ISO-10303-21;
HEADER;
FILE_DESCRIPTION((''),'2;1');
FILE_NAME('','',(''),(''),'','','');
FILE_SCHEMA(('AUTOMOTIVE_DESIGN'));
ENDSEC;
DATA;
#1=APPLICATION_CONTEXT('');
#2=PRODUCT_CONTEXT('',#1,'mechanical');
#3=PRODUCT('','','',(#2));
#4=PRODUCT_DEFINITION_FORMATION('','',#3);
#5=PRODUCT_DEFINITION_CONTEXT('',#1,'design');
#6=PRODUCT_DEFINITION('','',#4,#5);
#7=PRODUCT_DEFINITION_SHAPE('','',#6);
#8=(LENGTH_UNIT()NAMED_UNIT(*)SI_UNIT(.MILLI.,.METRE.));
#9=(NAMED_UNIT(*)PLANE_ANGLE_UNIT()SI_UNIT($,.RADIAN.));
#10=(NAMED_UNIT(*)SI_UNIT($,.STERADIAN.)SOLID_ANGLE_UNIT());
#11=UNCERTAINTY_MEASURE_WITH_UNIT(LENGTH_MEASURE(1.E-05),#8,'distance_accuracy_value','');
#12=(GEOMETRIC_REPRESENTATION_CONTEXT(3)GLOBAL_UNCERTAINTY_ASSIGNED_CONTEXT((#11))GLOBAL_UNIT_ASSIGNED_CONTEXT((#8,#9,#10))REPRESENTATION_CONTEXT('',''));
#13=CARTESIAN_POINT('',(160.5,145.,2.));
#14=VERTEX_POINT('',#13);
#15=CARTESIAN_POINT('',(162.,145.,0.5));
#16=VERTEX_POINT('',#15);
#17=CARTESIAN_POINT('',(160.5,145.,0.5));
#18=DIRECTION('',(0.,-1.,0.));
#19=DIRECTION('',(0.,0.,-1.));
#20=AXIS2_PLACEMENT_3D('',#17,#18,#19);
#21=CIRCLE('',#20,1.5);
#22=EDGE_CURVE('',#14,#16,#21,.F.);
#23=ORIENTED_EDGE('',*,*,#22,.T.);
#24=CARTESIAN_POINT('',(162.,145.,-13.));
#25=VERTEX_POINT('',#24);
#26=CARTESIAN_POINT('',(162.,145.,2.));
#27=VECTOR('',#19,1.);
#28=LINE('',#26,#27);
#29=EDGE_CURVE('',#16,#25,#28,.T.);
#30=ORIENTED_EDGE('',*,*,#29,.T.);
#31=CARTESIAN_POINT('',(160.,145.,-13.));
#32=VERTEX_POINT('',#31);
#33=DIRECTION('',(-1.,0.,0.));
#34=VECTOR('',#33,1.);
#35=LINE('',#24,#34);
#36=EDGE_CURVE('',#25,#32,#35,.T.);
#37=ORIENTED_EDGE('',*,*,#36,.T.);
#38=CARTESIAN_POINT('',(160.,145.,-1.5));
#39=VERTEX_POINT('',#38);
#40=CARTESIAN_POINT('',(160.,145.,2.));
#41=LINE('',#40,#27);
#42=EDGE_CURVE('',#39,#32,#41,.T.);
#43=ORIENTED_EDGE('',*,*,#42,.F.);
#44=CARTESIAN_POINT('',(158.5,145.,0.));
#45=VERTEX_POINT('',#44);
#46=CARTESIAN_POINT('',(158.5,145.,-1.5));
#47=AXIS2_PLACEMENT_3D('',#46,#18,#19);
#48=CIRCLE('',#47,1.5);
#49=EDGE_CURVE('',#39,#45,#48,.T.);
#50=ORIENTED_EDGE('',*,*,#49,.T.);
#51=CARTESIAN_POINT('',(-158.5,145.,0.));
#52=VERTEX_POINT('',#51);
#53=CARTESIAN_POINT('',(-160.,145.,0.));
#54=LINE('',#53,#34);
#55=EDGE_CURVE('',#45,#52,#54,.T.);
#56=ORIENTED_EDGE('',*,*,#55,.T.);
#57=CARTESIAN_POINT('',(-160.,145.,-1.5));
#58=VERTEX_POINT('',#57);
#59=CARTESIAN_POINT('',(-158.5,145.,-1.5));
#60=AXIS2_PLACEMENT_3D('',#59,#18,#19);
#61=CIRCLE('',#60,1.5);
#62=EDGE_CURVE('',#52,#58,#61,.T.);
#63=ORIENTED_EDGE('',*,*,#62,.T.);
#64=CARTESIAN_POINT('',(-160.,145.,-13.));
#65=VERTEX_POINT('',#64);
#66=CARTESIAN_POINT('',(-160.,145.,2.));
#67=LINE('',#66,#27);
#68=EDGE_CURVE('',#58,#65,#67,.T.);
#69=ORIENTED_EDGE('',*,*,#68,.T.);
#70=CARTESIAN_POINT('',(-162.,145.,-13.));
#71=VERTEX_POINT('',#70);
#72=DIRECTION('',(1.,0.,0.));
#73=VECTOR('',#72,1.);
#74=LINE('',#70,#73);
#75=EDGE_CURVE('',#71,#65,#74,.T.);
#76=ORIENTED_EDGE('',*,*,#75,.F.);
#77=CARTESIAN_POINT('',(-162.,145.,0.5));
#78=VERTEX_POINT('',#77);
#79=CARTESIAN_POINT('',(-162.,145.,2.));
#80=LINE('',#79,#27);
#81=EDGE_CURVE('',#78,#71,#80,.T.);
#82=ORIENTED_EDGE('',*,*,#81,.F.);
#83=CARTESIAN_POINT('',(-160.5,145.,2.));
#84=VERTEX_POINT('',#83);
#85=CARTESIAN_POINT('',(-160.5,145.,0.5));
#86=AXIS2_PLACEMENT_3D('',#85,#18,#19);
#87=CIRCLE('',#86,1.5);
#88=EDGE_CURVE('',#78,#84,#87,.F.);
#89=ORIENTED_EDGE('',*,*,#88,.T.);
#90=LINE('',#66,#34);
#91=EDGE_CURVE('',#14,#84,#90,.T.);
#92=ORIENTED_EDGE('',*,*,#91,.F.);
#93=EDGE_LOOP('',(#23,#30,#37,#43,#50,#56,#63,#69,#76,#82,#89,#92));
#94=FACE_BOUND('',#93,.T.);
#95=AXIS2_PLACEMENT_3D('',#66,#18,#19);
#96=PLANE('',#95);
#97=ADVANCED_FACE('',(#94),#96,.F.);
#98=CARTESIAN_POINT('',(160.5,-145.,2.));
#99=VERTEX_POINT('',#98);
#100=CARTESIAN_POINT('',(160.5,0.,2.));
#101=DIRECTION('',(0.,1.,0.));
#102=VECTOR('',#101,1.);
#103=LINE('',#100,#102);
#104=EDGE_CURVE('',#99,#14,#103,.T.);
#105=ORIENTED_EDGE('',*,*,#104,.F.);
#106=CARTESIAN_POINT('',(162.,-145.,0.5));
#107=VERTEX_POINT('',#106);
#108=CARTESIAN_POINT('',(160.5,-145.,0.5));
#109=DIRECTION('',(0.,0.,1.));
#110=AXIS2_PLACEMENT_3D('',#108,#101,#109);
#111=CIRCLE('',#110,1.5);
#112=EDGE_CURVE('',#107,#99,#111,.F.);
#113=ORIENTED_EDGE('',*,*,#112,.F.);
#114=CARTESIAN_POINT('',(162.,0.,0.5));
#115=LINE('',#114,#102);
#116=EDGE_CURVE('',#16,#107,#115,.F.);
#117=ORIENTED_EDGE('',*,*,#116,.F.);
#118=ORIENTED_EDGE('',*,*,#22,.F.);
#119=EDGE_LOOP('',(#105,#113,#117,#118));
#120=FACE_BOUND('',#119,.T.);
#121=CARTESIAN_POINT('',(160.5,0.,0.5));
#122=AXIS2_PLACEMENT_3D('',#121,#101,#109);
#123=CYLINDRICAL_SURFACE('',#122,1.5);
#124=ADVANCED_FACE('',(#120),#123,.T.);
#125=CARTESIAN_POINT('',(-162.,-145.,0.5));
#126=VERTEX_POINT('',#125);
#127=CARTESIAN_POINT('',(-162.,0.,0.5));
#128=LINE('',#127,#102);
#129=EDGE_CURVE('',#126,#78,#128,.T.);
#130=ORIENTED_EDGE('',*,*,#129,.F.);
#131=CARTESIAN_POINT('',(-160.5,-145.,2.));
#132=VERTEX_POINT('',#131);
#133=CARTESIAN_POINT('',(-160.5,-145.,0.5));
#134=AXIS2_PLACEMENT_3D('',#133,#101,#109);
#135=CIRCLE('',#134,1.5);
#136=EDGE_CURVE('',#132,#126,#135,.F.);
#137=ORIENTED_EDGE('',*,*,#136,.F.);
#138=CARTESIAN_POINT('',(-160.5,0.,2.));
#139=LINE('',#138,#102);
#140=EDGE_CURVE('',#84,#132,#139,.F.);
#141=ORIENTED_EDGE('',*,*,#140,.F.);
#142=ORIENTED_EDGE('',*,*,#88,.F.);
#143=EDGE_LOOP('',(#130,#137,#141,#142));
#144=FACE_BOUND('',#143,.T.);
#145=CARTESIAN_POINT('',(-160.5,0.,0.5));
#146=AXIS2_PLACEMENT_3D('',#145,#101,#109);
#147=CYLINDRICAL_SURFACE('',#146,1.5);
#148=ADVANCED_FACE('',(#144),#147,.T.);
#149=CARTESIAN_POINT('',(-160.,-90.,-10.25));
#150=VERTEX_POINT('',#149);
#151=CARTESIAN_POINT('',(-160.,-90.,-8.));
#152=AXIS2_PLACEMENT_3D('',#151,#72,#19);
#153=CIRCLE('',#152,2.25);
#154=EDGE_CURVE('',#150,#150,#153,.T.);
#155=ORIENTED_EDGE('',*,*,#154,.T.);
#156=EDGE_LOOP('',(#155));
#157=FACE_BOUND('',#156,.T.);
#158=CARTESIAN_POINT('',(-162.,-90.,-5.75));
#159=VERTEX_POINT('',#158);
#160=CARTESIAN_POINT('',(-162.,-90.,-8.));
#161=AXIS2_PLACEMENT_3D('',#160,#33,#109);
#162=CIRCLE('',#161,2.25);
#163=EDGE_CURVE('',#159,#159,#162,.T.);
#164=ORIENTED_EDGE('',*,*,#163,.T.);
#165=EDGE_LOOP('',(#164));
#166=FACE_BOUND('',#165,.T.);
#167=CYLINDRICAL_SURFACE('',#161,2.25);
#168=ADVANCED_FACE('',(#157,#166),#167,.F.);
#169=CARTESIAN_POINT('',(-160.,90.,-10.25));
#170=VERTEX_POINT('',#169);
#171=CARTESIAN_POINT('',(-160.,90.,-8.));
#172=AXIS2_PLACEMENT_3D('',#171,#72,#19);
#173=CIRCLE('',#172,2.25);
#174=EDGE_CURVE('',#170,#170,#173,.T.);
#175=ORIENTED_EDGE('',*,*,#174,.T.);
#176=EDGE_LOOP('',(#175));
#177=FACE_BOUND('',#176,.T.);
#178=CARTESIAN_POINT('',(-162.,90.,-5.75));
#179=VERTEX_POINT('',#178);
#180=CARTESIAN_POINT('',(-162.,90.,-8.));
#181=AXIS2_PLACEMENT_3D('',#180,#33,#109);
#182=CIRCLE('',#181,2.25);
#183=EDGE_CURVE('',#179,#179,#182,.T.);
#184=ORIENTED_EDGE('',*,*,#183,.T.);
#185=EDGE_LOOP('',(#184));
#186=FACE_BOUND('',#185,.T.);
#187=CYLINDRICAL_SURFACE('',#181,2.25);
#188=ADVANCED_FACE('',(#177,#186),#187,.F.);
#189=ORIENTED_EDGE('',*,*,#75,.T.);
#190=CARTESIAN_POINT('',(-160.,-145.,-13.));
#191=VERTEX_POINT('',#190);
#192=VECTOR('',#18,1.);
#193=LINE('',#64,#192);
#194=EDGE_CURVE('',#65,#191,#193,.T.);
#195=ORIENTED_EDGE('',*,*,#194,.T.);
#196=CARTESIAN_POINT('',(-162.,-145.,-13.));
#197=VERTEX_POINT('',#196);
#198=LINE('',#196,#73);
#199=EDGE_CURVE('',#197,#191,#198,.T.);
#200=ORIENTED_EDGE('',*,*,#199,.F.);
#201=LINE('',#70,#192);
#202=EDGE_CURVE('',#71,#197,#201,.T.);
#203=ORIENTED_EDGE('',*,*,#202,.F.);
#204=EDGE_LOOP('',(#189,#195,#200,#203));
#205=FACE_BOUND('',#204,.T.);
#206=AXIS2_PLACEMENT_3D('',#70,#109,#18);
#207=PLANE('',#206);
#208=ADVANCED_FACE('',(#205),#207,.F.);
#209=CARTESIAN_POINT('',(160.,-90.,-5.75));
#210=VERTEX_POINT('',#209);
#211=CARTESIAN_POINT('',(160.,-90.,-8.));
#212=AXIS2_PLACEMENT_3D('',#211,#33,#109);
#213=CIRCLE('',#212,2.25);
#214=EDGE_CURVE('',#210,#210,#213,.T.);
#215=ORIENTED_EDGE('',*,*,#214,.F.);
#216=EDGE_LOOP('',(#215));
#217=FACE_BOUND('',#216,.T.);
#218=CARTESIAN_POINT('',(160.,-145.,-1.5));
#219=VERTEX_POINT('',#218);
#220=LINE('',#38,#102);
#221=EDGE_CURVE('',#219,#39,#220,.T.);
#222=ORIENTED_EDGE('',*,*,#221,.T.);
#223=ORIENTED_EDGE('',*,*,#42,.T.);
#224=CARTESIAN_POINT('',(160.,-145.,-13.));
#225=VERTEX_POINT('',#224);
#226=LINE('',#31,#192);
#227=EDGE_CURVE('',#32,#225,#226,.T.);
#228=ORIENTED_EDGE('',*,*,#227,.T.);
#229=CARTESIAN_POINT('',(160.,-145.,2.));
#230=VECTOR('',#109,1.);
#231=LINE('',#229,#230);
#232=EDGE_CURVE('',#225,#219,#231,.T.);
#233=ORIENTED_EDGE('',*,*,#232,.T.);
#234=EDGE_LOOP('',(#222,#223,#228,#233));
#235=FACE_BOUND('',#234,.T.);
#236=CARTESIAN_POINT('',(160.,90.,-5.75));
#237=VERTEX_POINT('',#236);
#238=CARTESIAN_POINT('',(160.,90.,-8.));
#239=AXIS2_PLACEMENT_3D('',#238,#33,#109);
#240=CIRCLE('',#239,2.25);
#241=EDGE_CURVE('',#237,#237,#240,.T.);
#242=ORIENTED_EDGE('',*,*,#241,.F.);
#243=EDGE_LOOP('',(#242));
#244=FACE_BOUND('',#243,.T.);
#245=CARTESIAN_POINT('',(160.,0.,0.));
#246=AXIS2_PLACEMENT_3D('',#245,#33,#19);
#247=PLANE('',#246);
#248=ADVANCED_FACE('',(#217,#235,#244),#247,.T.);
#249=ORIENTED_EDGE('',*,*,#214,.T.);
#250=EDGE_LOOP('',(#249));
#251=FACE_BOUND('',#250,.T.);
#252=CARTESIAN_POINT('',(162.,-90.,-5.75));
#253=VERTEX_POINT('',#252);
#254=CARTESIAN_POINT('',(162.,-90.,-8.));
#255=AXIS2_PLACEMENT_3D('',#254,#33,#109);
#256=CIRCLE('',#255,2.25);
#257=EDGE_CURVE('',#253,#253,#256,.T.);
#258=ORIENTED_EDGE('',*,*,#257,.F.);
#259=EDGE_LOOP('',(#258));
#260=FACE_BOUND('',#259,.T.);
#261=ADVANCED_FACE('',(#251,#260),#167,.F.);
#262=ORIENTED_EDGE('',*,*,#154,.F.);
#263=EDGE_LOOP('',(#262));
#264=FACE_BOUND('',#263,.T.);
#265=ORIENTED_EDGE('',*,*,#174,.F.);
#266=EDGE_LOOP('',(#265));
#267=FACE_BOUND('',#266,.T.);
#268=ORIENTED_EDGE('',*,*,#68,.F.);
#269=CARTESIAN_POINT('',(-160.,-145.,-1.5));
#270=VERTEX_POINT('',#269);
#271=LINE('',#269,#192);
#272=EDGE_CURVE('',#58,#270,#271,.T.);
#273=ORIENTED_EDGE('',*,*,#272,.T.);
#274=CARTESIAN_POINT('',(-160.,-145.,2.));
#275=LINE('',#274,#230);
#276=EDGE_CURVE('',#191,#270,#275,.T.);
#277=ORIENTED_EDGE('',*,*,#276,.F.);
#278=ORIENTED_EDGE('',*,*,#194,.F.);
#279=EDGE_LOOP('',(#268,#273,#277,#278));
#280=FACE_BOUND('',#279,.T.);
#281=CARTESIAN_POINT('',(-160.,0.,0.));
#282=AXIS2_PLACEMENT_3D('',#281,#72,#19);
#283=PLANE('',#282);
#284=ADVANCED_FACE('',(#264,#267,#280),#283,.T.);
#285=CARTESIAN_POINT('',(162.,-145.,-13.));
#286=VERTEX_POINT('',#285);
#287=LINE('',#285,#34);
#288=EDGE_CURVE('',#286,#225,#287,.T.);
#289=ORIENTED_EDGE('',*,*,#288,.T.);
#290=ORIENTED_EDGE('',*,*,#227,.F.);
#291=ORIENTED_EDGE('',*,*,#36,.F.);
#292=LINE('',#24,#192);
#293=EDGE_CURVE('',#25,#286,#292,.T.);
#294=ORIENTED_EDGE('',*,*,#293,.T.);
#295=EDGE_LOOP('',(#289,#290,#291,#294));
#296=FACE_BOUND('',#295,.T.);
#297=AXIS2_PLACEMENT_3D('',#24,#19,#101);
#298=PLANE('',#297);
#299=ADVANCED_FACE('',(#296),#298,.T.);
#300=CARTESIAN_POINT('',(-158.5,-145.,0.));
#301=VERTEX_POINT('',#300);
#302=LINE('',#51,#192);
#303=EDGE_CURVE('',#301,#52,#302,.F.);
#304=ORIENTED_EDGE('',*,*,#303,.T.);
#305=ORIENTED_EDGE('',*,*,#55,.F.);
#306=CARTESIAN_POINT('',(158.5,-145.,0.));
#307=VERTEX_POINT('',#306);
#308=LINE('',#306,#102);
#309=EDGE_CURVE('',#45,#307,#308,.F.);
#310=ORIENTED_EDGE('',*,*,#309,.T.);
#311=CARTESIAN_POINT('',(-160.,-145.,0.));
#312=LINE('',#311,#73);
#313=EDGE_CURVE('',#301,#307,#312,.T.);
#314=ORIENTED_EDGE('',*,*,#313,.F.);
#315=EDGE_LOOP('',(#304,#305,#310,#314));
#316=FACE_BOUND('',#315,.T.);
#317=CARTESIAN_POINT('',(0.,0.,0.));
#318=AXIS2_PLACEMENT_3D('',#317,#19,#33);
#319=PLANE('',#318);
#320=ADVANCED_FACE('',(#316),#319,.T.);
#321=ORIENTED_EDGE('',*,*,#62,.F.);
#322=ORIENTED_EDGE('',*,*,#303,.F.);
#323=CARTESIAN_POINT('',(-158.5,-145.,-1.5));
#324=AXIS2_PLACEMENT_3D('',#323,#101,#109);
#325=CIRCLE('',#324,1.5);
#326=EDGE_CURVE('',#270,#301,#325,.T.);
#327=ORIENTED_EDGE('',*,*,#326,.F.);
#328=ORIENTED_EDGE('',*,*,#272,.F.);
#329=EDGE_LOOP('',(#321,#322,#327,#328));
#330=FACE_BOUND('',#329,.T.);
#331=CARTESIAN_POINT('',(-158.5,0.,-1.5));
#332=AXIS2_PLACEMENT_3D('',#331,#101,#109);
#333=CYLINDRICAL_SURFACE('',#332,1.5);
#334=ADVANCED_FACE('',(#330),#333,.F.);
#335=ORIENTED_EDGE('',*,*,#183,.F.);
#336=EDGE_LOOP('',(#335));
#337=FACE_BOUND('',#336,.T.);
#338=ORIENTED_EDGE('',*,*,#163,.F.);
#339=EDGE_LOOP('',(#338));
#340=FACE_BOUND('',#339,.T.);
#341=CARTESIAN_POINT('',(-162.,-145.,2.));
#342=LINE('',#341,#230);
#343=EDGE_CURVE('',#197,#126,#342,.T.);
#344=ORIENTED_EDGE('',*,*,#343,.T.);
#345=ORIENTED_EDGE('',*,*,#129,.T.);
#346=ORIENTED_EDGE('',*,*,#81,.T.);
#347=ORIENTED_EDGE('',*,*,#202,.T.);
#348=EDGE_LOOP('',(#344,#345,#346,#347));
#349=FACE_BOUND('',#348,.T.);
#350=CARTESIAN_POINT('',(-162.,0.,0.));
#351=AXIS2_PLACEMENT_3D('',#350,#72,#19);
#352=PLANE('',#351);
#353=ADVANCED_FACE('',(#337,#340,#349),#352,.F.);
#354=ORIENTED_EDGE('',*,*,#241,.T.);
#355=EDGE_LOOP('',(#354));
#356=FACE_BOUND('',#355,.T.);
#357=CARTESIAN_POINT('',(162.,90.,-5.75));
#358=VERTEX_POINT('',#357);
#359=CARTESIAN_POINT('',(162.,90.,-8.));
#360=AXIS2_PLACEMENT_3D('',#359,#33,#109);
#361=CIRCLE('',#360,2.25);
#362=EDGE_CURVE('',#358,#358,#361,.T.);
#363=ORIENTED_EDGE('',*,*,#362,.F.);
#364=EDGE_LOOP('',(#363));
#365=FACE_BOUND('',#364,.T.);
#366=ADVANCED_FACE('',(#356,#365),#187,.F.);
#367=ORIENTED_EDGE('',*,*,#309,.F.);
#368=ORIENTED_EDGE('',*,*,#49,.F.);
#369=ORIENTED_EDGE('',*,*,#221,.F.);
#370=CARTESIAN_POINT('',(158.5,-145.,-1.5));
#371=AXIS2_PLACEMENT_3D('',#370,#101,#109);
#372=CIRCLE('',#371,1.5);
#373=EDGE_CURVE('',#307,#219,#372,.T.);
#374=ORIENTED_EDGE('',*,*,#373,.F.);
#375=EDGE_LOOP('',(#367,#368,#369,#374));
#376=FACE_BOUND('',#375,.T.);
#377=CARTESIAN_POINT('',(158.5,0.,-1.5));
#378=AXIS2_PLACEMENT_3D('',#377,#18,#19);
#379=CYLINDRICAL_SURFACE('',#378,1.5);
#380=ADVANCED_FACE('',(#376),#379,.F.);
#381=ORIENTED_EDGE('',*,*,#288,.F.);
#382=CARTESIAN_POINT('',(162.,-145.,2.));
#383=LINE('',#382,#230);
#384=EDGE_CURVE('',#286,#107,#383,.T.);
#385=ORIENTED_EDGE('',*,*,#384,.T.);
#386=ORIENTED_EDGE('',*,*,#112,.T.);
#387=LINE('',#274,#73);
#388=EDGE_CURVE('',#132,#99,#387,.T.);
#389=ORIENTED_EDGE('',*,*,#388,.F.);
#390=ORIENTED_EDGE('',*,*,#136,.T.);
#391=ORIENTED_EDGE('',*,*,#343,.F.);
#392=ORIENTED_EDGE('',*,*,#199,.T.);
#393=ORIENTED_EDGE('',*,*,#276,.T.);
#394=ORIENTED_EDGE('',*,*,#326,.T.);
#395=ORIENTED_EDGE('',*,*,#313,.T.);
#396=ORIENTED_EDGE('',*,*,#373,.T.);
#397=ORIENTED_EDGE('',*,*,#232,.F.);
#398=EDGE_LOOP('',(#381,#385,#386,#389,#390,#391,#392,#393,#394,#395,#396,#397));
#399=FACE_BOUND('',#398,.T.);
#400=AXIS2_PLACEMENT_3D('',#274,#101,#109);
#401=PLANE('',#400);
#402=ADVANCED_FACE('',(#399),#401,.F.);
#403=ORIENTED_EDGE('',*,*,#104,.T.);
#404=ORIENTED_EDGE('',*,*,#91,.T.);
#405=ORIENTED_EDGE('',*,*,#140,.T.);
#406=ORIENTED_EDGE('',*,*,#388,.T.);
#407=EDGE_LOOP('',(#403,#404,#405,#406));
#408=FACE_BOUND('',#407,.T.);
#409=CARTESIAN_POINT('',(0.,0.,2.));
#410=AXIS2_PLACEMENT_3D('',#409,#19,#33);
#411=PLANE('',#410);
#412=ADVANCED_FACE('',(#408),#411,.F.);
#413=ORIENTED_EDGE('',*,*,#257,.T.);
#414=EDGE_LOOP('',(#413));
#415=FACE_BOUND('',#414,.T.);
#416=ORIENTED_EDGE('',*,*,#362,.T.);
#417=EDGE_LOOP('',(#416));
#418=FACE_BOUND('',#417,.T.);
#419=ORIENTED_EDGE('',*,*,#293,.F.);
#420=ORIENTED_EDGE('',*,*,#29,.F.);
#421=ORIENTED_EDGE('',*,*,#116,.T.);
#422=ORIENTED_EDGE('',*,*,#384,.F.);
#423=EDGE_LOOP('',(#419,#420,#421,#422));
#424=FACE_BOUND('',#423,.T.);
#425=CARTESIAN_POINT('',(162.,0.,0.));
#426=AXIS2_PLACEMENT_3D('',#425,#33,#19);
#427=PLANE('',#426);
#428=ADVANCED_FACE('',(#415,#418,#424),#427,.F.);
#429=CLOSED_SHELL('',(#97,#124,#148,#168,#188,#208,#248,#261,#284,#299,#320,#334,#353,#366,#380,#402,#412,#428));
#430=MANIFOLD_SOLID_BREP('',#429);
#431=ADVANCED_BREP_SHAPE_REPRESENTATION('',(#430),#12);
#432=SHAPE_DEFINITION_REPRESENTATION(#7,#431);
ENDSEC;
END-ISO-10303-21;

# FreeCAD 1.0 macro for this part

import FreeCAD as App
import Part
import Sketcher


def edges_at(feature, points):
    """Names of the edges that pass closest to the given points."""
    edges = feature.Shape.Edges
    near = lambda p: min(range(len(edges)), key=lambda i: edges[i].distToShape(Part.Vertex(*p))[0])
    return sorted({f"Edge{near(p) + 1}" for p in points})


def add_polygon(sketch, points):
    """Adds a closed chain of lines whose ends are joined by coincident constraints."""
    first, n = sketch.GeometryCount, len(points)
    for a, b in zip(points, points[1:] + points[:1]):
        sketch.addGeometry(Part.LineSegment(App.Vector(*a, 0), App.Vector(*b, 0)), False)
    for i in range(n):
        sketch.addConstraint(Sketcher.Constraint("Coincident", first + i, 2, first + (i + 1) % n, 1))

doc = App.newDocument("Part")
body = doc.addObject("PartDesign::Body", "Body")

sketch1 = doc.addObject("Sketcher::SketchObject", "Sketch")
body.addObject(sketch1)
sketch1.AttachmentSupport = (doc.XY_Plane, [""])
sketch1.MapMode = "FlatFace"
add_polygon(sketch1, [(-160, 145), (-160, -145), (160, -145), (160, 145)])
sketch1.addConstraint([
    Sketcher.Constraint("Vertical", 0),
    Sketcher.Constraint("Horizontal", 1),
    Sketcher.Constraint("Vertical", 2),
    Sketcher.Constraint("Horizontal", 3),
    Sketcher.Constraint("Symmetric", 0, 2, 2, 2, -1, 1),
    Sketcher.Constraint("DistanceX", 1, 1, 1, 2, 320.0),
    Sketcher.Constraint("DistanceY", 0, 2, 0, 1, 290.0),
])
pad1 = doc.addObject("PartDesign::Pad", "Pad")
body.addObject(pad1)
pad1.Profile = sketch1
pad1.Length = 2

sketch2 = doc.addObject("Sketcher::SketchObject", "Sketch001")
body.addObject(sketch2)
sketch2.AttachmentSupport = (doc.YZ_Plane, [""])
sketch2.MapMode = "FlatFace"
sketch2.AttachmentOffset = App.Placement(App.Vector(0, 0, -160), App.Rotation())
add_polygon(sketch2, [(145, -13), (-145, -13), (-145, 2), (145, 2)])
sketch2.addConstraint([
    Sketcher.Constraint("Horizontal", 0),
    Sketcher.Constraint("Vertical", 1),
    Sketcher.Constraint("Horizontal", 2),
    Sketcher.Constraint("Vertical", 3),
    Sketcher.Constraint("DistanceX", 0, 2, 0, 1, 290.0),
    Sketcher.Constraint("DistanceY", 1, 1, 1, 2, 15.0),
    Sketcher.Constraint("DistanceX", 0, 2, -1, 1, 145.0),
    Sketcher.Constraint("DistanceY", 0, 2, -1, 1, 13.0),
])
pad2 = doc.addObject("PartDesign::Pad", "Pad001")
body.addObject(pad2)
pad2.Profile = sketch2
pad2.Length = 2
pad2.Reversed = True
doc.recompute()

fillet = doc.addObject("PartDesign::Fillet", "Fillet")
body.addObject(fillet)
fillet.Base = (pad2, edges_at(pad2, [(-160, 0, 0), (-162, 0, 2)]))
fillet.Radius = 1.5
doc.recompute()

mirrored = doc.addObject("PartDesign::Mirrored", "Mirrored")
body.addObject(mirrored)
mirrored.Originals = [pad2]
mirrored.MirrorPlane = (doc.YZ_Plane, [""])
body.Tip = mirrored
doc.recompute()

fillet2 = doc.addObject("PartDesign::Fillet", "Fillet001")
body.addObject(fillet2)
fillet2.Base = (mirrored, edges_at(mirrored, [(160, 0, 0), (162, 0, 2)]))
fillet2.Radius = 1.5

sketch3 = doc.addObject("Sketcher::SketchObject", "Sketch002")
body.addObject(sketch3)
sketch3.AttachmentSupport = (doc.YZ_Plane, [""])
sketch3.MapMode = "FlatFace"
sketch3.AttachmentOffset = App.Placement(App.Vector(0, 0, -162), App.Rotation())
sketch3.addGeometry([
    Part.Circle(App.Vector(-90, -8, 0), App.Vector(0, 0, 1), 2.2),
    Part.Circle(App.Vector(90, -8, 0), App.Vector(0, 0, 1), 2.2),
], False)
sketch3.addConstraint([
    Sketcher.Constraint("Equal", 0, 1),
    Sketcher.Constraint("Symmetric", 0, 3, 1, 3, -2),
    Sketcher.Constraint("Diameter", 0, 4.5),
    Sketcher.Constraint("DistanceX", 0, 3, -1, 1, 90.0),
    Sketcher.Constraint("DistanceY", 0, 3, -1, 1, 8.0),
])
doc.recompute()
hole = doc.addObject("PartDesign::Hole", "Hole")
body.addObject(hole)
hole.Profile = sketch3
hole.ThreadType = "None"
hole.Diameter = 4.5
hole.DepthType = "ThroughAll"
hole.Reversed = True

doc.recompute()
